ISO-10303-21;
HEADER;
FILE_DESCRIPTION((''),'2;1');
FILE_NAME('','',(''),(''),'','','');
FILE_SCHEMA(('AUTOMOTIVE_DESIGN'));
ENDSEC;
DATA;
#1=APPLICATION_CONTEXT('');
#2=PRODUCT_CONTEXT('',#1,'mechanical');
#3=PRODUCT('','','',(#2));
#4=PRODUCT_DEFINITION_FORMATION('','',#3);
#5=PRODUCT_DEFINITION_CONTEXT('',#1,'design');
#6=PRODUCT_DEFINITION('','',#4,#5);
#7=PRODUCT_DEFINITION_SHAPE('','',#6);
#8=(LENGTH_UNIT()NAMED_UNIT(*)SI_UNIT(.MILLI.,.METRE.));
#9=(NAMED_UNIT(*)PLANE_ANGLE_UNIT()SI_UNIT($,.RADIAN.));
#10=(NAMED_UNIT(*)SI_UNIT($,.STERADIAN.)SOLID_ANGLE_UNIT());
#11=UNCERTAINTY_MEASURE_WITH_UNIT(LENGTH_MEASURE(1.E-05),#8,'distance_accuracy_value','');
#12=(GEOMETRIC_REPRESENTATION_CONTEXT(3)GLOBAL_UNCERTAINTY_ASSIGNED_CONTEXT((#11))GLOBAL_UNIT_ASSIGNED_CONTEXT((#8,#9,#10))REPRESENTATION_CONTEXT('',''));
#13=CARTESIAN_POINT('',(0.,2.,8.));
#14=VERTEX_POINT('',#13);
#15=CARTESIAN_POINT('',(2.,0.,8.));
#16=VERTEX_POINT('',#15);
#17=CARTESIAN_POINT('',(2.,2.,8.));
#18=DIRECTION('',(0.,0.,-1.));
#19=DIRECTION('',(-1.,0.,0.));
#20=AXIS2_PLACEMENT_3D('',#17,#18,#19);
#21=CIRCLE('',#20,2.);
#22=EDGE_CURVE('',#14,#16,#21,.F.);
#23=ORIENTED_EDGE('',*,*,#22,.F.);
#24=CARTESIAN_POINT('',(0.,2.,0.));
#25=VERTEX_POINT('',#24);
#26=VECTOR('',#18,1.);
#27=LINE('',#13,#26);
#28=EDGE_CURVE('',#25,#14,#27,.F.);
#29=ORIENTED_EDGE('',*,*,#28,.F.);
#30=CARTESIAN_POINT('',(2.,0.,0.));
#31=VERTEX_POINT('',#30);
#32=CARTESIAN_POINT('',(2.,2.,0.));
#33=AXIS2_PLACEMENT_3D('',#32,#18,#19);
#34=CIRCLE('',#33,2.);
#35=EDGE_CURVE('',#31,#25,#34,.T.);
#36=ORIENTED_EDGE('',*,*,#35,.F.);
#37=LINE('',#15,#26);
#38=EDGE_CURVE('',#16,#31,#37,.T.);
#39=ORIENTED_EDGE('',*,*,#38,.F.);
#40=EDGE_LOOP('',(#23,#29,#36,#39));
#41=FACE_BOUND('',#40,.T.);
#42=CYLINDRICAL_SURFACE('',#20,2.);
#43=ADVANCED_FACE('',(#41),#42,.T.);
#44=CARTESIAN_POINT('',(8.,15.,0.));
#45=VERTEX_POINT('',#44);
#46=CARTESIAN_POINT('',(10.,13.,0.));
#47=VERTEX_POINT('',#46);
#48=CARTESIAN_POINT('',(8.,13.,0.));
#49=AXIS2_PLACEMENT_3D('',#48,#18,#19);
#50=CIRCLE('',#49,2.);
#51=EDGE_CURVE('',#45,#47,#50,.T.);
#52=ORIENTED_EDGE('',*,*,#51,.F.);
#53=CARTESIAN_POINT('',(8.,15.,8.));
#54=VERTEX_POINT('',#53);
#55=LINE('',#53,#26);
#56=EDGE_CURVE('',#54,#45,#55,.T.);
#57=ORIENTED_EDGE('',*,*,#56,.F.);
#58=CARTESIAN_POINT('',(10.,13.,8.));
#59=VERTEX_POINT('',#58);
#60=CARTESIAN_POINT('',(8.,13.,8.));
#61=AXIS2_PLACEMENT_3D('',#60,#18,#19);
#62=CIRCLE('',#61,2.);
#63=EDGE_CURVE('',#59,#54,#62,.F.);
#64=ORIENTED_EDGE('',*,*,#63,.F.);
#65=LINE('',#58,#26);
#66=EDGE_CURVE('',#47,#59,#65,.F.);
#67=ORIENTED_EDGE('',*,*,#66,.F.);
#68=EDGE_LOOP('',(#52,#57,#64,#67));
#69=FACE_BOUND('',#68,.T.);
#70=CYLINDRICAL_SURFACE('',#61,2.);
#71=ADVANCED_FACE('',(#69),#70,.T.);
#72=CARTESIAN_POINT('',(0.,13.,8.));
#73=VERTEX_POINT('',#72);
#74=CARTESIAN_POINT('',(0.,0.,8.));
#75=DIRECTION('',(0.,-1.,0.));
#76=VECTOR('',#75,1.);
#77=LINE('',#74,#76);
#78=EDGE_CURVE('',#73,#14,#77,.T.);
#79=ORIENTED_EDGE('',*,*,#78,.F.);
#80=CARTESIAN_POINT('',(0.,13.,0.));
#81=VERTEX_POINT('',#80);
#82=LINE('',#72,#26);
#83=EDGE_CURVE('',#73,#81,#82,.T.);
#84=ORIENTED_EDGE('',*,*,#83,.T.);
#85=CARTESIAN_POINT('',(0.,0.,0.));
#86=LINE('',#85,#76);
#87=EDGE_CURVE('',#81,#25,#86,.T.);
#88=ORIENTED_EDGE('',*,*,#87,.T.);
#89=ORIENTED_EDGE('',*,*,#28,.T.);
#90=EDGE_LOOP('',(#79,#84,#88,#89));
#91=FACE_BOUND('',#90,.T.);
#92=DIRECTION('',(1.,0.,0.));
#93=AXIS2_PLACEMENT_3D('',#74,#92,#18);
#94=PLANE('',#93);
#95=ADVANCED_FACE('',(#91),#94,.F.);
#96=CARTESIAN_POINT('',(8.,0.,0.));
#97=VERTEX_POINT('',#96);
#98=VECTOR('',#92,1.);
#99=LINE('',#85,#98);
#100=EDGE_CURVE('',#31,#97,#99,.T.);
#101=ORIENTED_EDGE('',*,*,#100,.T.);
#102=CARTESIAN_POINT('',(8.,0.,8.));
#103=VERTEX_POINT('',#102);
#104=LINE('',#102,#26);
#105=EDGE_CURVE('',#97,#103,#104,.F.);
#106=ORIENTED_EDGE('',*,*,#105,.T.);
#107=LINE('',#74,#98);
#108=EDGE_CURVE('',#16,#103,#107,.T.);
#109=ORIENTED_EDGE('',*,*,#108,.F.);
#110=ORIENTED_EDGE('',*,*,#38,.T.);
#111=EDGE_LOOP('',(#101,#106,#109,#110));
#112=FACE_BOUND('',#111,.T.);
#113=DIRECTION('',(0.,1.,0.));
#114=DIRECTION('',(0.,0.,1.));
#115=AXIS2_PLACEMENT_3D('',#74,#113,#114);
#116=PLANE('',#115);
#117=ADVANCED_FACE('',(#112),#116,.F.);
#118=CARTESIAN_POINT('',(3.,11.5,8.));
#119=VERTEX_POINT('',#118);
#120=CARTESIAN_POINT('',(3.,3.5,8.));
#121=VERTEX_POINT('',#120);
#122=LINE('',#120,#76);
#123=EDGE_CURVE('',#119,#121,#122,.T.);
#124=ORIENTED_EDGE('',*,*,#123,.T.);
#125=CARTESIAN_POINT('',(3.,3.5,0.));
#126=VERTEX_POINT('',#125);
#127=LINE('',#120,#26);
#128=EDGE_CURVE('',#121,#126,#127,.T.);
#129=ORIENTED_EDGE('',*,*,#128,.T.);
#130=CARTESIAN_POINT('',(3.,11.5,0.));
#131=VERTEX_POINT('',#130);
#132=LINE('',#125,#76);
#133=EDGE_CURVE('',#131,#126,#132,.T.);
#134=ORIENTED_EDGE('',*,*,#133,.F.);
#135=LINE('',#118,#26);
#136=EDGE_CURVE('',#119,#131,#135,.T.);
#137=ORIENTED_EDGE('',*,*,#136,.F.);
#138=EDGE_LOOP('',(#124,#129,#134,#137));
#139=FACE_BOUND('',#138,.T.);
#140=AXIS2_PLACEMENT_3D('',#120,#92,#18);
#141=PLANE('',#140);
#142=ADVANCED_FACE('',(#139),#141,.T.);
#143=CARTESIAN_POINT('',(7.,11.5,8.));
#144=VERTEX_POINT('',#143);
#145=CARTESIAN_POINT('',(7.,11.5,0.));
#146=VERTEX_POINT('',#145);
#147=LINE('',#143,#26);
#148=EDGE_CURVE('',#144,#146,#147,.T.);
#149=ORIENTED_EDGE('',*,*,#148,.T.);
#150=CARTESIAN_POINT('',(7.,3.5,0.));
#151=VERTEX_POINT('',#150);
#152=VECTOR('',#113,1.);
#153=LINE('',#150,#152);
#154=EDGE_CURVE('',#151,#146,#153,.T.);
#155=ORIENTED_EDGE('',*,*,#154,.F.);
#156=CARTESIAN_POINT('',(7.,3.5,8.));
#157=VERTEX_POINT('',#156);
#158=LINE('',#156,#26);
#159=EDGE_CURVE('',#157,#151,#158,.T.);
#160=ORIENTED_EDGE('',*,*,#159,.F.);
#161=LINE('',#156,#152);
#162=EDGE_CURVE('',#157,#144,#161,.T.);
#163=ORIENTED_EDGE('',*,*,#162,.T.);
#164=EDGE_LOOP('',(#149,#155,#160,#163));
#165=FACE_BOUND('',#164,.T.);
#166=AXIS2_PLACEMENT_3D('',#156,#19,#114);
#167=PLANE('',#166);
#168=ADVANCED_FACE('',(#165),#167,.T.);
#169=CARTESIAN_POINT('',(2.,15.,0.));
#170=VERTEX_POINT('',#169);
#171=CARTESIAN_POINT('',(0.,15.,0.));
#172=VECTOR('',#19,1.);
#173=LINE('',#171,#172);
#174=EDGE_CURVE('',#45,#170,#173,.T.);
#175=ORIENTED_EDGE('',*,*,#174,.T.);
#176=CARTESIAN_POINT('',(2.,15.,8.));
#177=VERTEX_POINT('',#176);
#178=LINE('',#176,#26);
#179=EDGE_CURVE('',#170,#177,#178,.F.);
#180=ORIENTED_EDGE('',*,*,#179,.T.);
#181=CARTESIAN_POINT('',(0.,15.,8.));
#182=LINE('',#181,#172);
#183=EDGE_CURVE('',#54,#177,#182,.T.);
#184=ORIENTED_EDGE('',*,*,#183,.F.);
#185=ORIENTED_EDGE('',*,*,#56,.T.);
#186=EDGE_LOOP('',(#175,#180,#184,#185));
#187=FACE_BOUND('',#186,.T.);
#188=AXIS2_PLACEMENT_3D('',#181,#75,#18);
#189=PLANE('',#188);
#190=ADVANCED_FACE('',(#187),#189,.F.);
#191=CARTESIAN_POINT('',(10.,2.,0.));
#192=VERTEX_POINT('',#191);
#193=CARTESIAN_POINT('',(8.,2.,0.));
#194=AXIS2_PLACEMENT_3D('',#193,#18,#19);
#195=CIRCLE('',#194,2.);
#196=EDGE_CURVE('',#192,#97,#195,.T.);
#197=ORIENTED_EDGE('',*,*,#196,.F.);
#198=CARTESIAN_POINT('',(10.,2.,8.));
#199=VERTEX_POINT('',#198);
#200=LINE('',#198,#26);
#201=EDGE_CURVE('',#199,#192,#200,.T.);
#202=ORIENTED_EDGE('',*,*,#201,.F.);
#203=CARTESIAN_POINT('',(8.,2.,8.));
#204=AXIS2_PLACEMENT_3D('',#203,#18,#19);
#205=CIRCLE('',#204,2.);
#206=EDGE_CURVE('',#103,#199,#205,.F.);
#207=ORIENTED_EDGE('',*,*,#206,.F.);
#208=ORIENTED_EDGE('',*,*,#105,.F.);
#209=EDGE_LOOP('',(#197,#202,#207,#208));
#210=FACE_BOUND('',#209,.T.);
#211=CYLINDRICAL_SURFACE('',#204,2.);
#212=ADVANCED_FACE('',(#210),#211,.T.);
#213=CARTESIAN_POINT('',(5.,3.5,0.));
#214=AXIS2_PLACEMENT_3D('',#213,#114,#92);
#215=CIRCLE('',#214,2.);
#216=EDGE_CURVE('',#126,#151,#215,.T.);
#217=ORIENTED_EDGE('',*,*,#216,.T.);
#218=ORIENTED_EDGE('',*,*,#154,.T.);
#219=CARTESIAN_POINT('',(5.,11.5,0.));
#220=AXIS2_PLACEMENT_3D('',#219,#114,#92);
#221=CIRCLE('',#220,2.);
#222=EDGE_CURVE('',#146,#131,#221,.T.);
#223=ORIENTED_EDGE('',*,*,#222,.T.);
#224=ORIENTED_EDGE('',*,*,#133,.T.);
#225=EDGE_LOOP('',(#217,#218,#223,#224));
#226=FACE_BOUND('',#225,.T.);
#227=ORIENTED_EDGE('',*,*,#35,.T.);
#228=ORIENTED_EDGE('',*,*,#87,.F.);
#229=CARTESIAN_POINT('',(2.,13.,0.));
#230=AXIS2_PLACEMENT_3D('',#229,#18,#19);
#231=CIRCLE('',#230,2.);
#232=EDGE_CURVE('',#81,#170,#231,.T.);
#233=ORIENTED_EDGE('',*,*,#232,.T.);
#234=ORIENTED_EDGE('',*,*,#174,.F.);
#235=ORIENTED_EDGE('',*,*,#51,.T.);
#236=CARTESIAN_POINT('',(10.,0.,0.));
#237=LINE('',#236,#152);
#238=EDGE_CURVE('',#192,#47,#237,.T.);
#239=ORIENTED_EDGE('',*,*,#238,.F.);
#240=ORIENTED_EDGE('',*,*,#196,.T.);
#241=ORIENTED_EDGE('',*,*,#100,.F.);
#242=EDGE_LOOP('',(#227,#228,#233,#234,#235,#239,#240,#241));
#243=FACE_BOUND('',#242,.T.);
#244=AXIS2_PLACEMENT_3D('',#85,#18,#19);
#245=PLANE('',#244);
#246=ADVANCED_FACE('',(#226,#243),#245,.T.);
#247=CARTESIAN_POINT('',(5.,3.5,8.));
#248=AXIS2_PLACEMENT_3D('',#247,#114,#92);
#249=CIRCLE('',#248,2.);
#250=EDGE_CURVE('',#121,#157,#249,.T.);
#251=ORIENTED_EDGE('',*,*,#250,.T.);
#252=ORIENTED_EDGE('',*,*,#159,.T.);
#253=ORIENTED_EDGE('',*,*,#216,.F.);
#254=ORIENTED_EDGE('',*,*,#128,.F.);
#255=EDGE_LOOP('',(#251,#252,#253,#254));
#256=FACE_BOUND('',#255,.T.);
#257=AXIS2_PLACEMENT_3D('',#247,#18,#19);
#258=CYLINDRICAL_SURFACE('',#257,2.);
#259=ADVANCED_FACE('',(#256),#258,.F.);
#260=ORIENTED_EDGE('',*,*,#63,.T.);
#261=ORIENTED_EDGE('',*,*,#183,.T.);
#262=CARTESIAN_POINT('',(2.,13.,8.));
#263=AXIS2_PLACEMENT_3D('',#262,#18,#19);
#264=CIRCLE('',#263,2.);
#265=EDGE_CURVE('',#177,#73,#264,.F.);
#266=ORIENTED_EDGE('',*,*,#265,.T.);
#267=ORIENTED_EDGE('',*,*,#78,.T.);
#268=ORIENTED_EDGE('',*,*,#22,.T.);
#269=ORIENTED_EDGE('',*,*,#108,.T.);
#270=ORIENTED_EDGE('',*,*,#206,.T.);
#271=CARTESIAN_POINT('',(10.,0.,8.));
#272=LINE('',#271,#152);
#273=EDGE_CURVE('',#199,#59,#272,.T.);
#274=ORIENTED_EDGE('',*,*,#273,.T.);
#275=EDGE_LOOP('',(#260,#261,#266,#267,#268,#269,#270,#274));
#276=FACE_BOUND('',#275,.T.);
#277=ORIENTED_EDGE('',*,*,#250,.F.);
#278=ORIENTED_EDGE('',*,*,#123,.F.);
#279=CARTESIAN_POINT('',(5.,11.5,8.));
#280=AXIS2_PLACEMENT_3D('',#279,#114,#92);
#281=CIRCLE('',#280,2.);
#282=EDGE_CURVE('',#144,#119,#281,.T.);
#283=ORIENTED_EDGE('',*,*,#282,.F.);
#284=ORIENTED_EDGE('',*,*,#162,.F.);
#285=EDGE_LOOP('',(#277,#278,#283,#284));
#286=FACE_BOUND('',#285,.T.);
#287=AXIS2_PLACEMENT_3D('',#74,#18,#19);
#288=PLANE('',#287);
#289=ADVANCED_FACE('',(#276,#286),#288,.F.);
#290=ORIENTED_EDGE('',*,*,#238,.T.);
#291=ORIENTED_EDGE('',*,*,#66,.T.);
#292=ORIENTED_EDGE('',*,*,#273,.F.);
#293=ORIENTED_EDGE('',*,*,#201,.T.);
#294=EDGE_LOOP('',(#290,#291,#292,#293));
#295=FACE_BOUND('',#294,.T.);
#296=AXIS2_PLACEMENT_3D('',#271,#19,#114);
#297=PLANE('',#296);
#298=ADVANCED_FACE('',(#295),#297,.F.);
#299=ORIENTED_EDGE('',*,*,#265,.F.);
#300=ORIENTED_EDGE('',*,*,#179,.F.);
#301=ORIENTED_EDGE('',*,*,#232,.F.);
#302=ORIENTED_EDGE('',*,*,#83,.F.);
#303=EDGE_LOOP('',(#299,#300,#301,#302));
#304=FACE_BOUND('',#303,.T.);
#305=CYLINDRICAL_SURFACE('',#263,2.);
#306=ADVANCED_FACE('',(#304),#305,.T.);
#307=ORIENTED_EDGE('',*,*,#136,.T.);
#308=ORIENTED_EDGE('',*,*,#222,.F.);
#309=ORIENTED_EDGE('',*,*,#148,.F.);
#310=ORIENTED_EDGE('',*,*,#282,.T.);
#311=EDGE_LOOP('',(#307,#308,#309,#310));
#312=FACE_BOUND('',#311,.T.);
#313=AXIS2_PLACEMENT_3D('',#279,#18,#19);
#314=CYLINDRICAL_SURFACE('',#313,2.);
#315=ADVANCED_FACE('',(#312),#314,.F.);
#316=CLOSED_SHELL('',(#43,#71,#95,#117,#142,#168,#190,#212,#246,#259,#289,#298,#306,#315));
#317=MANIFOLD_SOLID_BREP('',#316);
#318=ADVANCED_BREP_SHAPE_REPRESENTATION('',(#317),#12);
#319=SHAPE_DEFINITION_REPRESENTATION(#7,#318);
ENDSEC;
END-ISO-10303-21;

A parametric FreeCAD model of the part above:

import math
import FreeCAD as App
import Part
import Sketcher

V = App.Vector
Q = App.Units.Quantity


def edges_at(feature, points):
    """Names of the edges that pass closest to the given points."""
    edges = feature.Shape.Edges
    near = lambda p: min(range(len(edges)), key=lambda i: edges[i].distToShape(Part.Vertex(*p))[0])
    return sorted({f"Edge{near(p) + 1}" for p in points})


def add_polygon(sketch, points):
    """Adds a closed chain of lines whose ends are joined by coincident constraints."""
    first, n = sketch.GeometryCount, len(points)
    for a, b in zip(points, points[1:] + points[:1]):
        sketch.addGeometry(Part.LineSegment(App.Vector(*a, 0), App.Vector(*b, 0)), False)
    for i in range(n):
        sketch.addConstraint(Sketcher.Constraint("Coincident", first + i, 2, first + (i + 1) % n, 1))

doc = App.newDocument("Part")
body = doc.addObject("PartDesign::Body", "Body")

# Sketch on XY plane
sketch1 = body.newObject("Sketcher::SketchObject", "Sketch")
sketch1.AttachmentSupport = (doc.getObject("XY_Plane"), [""])
sketch1.MapMode = "FlatFace"
add_polygon(sketch1, [(0, 15), (0, 0), (10, 0), (10, 15)])  # lines 0-3
sketch1.addGeometry(Part.ArcOfCircle(Part.Circle(V(5, 3.5, 0), V(0, 0, 1), 2), math.radians(180), math.radians(360)), False)  # 4
sketch1.addGeometry(Part.LineSegment(V(3, 3.5, 0), V(3, 11.5, 0)), False)  # 5
sketch1.addGeometry(Part.ArcOfCircle(Part.Circle(V(5, 11.5, 0), V(0, 0, 1), 2), math.radians(0), math.radians(180)), False)  # 6
sketch1.addGeometry(Part.LineSegment(V(7, 11.5, 0), V(7, 3.5, 0)), False)  # 7
sketch1.addConstraint([
    Sketcher.Constraint("Tangent", 4, 1, 5, 1),
    Sketcher.Constraint("Tangent", 5, 2, 6, 2),
    Sketcher.Constraint("Tangent", 6, 1, 7, 1),
    Sketcher.Constraint("Tangent", 7, 2, 4, 2),
    Sketcher.Constraint("Vertical", 0),
    Sketcher.Constraint("Horizontal", 1),
    Sketcher.Constraint("Vertical", 2),
    Sketcher.Constraint("Horizontal", 3),
    Sketcher.Constraint("Vertical", 5),
    Sketcher.Constraint("Vertical", 7),
    Sketcher.Constraint("Coincident", 0, 2, -1, 1),
    Sketcher.Constraint("Radius", 4, Q("2 mm")),
    Sketcher.Constraint("DistanceX", 1, 1, 1, 2, Q("10 mm")),
    Sketcher.Constraint("DistanceY", 0, 2, 0, 1, Q("15 mm")),
    Sketcher.Constraint("DistanceY", 5, 1, 5, 2, Q("8 mm")),
    Sketcher.Constraint("DistanceX", -1, 1, 4, 3, Q("5 mm")),
    Sketcher.Constraint("DistanceY", -1, 1, 4, 3, Q("3.5 mm")),
])
pad1 = body.newObject("PartDesign::Pad", "Pad")
pad1.Profile = sketch1
pad1.Length = 8
doc.recompute()

fillet = body.newObject("PartDesign::Fillet", "Fillet")
fillet.Base = (pad1, edges_at(pad1, [
    (0, 15, 4),
    (10, 15, 4),
    (10, 0, 4),
    (0, 0, 4),
]))
fillet.Radius = 2

doc.recompute()
